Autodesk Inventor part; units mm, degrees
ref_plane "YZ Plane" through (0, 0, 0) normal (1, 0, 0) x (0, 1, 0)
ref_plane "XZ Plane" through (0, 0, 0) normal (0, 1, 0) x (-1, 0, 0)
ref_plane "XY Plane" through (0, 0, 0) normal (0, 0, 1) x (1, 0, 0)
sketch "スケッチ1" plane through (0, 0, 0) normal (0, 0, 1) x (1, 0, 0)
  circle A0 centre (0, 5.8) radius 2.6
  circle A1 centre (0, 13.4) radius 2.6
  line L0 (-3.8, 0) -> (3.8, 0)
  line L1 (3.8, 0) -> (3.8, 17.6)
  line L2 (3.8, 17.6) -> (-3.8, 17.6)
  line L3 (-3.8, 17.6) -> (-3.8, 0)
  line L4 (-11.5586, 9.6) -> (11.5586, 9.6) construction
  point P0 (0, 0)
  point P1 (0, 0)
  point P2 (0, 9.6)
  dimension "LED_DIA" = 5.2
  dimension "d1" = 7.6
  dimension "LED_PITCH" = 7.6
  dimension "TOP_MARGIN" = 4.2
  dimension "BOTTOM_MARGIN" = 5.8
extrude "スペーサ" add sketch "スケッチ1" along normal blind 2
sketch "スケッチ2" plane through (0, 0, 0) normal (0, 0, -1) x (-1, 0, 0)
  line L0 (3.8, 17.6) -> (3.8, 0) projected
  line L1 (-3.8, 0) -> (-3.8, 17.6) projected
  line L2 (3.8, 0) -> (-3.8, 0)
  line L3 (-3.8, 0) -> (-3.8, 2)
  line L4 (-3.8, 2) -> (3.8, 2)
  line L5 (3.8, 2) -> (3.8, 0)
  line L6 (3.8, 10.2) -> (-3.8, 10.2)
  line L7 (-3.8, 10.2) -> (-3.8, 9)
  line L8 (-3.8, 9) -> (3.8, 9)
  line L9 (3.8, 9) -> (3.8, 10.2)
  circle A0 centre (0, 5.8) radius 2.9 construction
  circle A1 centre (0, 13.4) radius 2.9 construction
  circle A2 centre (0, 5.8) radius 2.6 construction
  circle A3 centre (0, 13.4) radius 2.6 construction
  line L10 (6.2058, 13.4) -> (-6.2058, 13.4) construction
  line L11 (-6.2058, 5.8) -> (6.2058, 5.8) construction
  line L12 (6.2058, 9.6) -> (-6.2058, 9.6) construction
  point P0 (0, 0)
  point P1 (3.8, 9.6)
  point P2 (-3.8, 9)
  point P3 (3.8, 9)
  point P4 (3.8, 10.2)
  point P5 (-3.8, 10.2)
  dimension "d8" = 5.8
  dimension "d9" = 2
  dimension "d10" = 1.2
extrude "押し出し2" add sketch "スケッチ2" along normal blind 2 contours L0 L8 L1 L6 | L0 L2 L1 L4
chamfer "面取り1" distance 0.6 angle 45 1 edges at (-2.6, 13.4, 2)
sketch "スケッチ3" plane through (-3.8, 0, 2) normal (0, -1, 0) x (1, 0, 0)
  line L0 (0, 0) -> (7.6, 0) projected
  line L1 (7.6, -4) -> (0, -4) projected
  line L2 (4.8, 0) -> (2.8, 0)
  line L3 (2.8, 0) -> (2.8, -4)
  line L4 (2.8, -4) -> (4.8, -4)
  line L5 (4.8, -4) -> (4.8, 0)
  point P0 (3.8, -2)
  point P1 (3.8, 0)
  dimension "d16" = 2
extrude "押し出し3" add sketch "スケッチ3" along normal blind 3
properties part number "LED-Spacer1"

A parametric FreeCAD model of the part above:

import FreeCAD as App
import Part
import Sketcher
Q = App.Units.Quantity


def edges_at(feature, points):
    """Names of the edges that pass closest to the given points."""
    edges = feature.Shape.Edges
    near = lambda p: min(range(len(edges)), key=lambda i: edges[i].distToShape(Part.Vertex(*p))[0])
    return sorted({f"Edge{near(p) + 1}" for p in points})

doc = App.newDocument("Part")
body = doc.addObject("PartDesign::Body", "Body")

# Sketch on XY plane
sketch1 = doc.addObject("Sketcher::SketchObject", "Sketch")
body.addObject(sketch1)
sketch1.AttachmentSupport = (doc.XY_Plane, [""])
sketch1.MapMode = "FlatFace"
sketch1.addGeometry([
    Part.LineSegment(App.Vector(-3.8, 17.6, 0), App.Vector(-3.8, 0, 0)),  # 0
    Part.LineSegment(App.Vector(-3.8, 0, 0), App.Vector(3.8, 0, 0)),  # 1
    Part.LineSegment(App.Vector(3.8, 0, 0), App.Vector(3.8, 17.6, 0)),  # 2
    Part.LineSegment(App.Vector(3.8, 17.6, 0), App.Vector(-3.8, 17.6, 0)),  # 3
    Part.Circle(App.Vector(0, 5.8, 0), App.Vector(0, 0, 1), 2.6),  # 4
    Part.Circle(App.Vector(0, 13.4, 0), App.Vector(0, 0, 1), 2.6),  # 5
], False)
sketch1.addConstraint([
    Sketcher.Constraint("Coincident", 0, 2, 1, 1),
    Sketcher.Constraint("Coincident", 1, 2, 2, 1),
    Sketcher.Constraint("Coincident", 2, 2, 3, 1),
    Sketcher.Constraint("Coincident", 3, 2, 0, 1),
    Sketcher.Constraint("Vertical", 0),
    Sketcher.Constraint("Horizontal", 1),
    Sketcher.Constraint("Vertical", 2),
    Sketcher.Constraint("Horizontal", 3),
    Sketcher.Constraint("Equal", 4, 5),
    Sketcher.Constraint("Symmetric", 0, 2, 1, 2, -1, 1),
    Sketcher.Constraint("PointOnObject", 4, 3, -2),
    Sketcher.Constraint("PointOnObject", 5, 3, -2),
    Sketcher.Constraint("Diameter", 4, Q("5.2 mm")),
    Sketcher.Constraint("DistanceX", 1, 1, 1, 2, Q("7.6 mm")),
    Sketcher.Constraint("DistanceY", -1, 1, 4, 3, Q("5.8 mm")),
    Sketcher.Constraint("DistanceY", 4, 3, 5, 3, Q("7.6 mm")),
    Sketcher.Constraint("DistanceY", 5, 3, 2, 2, Q("4.2 mm")),
])
pad1 = doc.addObject("PartDesign::Pad", "Pad")
body.addObject(pad1)
pad1.Profile = sketch1
pad1.Length = 2

# Sketch on XY plane
sketch2 = doc.addObject("Sketcher::SketchObject", "Sketch001")
body.addObject(sketch2)
sketch2.AttachmentSupport = (doc.XY_Plane, [""])
sketch2.MapMode = "FlatFace"
sketch2.addGeometry([
    Part.LineSegment(App.Vector(-3.8, 9, 0), App.Vector(-3.8, 10.2, 0)),  # 0
    Part.LineSegment(App.Vector(-3.8, 10.2, 0), App.Vector(3.8, 10.2, 0)),  # 1
    Part.LineSegment(App.Vector(3.8, 10.2, 0), App.Vector(3.8, 9, 0)),  # 2
    Part.LineSegment(App.Vector(3.8, 9, 0), App.Vector(-3.8, 9, 0)),  # 3
    Part.LineSegment(App.Vector(-3.8, 0, 0), App.Vector(-3.8, 2, 0)),  # 4
    Part.LineSegment(App.Vector(-3.8, 2, 0), App.Vector(3.8, 2, 0)),  # 5
    Part.LineSegment(App.Vector(3.8, 2, 0), App.Vector(3.8, 0, 0)),  # 6
    Part.LineSegment(App.Vector(3.8, 0, 0), App.Vector(-3.8, 0, 0)),  # 7
], False)
sketch2.addConstraint([
    Sketcher.Constraint("Coincident", 0, 2, 1, 1),
    Sketcher.Constraint("Coincident", 1, 2, 2, 1),
    Sketcher.Constraint("Coincident", 2, 2, 3, 1),
    Sketcher.Constraint("Coincident", 3, 2, 0, 1),
    Sketcher.Constraint("Coincident", 4, 2, 5, 1),
    Sketcher.Constraint("Coincident", 5, 2, 6, 1),
    Sketcher.Constraint("Coincident", 6, 2, 7, 1),
    Sketcher.Constraint("Coincident", 7, 2, 4, 1),
    Sketcher.Constraint("Vertical", 0),
    Sketcher.Constraint("Horizontal", 1),
    Sketcher.Constraint("Vertical", 2),
    Sketcher.Constraint("Horizontal", 3),
    Sketcher.Constraint("Vertical", 4),
    Sketcher.Constraint("Horizontal", 5),
    Sketcher.Constraint("Vertical", 6),
    Sketcher.Constraint("Horizontal", 7),
    Sketcher.Constraint("Symmetric", 6, 2, 7, 2, -1, 1),
    Sketcher.Constraint("Vertical", 3, 2, 4, 2),
    Sketcher.Constraint("Vertical", 2, 2, 5, 2),
    Sketcher.Constraint("DistanceY", 4, 1, 4, 2, Q("2 mm")),
    Sketcher.Constraint("DistanceY", 0, 1, 0, 2, Q("1.2 mm")),
    Sketcher.Constraint("DistanceX", 1, 1, 1, 2, Q("7.6 mm")),
    Sketcher.Constraint("DistanceY", -1, 1, 2, 2, Q("9 mm")),
])
pad2 = doc.addObject("PartDesign::Pad", "Pad001")
body.addObject(pad2)
pad2.Profile = sketch2
pad2.Length = 2
pad2.Reversed = True
doc.recompute()

chamfer = doc.addObject("PartDesign::Chamfer", "Chamfer")
body.addObject(chamfer)
chamfer.Base = (pad2, edges_at(pad2, [(-2.6, 13.4, 2)]))
chamfer.Size = 0.6

# Sketch on XZ plane
sketch3 = doc.addObject("Sketcher::SketchObject", "Sketch002")
body.addObject(sketch3)
sketch3.AttachmentSupport = (doc.XZ_Plane, [""])
sketch3.MapMode = "FlatFace"
sketch3.addGeometry([
    Part.LineSegment(App.Vector(1, 2, 0), App.Vector(-1, 2, 0)),
    Part.LineSegment(App.Vector(-1, 2, 0), App.Vector(-1, -2, 0)),
    Part.LineSegment(App.Vector(-1, -2, 0), App.Vector(1, -2, 0)),
    Part.LineSegment(App.Vector(1, -2, 0), App.Vector(1, 2, 0)),
], False)
sketch3.addConstraint([
    Sketcher.Constraint("Coincident", 0, 2, 1, 1),
    Sketcher.Constraint("Coincident", 1, 2, 2, 1),
    Sketcher.Constraint("Coincident", 2, 2, 3, 1),
    Sketcher.Constraint("Coincident", 3, 2, 0, 1),
    Sketcher.Constraint("Horizontal", 0),
    Sketcher.Constraint("Vertical", 1),
    Sketcher.Constraint("Horizontal", 2),
    Sketcher.Constraint("Vertical", 3),
    Sketcher.Constraint("Symmetric", 0, 2, 2, 2, -1, 1),
    Sketcher.Constraint("DistanceX", 0, 2, 0, 1, Q("2 mm")),
    Sketcher.Constraint("DistanceY", -1, 1, 0, 2, Q("2 mm")),
])
pad3 = doc.addObject("PartDesign::Pad", "Pad002")
body.addObject(pad3)
pad3.Profile = sketch3
pad3.Length = 3

doc.recompute()
